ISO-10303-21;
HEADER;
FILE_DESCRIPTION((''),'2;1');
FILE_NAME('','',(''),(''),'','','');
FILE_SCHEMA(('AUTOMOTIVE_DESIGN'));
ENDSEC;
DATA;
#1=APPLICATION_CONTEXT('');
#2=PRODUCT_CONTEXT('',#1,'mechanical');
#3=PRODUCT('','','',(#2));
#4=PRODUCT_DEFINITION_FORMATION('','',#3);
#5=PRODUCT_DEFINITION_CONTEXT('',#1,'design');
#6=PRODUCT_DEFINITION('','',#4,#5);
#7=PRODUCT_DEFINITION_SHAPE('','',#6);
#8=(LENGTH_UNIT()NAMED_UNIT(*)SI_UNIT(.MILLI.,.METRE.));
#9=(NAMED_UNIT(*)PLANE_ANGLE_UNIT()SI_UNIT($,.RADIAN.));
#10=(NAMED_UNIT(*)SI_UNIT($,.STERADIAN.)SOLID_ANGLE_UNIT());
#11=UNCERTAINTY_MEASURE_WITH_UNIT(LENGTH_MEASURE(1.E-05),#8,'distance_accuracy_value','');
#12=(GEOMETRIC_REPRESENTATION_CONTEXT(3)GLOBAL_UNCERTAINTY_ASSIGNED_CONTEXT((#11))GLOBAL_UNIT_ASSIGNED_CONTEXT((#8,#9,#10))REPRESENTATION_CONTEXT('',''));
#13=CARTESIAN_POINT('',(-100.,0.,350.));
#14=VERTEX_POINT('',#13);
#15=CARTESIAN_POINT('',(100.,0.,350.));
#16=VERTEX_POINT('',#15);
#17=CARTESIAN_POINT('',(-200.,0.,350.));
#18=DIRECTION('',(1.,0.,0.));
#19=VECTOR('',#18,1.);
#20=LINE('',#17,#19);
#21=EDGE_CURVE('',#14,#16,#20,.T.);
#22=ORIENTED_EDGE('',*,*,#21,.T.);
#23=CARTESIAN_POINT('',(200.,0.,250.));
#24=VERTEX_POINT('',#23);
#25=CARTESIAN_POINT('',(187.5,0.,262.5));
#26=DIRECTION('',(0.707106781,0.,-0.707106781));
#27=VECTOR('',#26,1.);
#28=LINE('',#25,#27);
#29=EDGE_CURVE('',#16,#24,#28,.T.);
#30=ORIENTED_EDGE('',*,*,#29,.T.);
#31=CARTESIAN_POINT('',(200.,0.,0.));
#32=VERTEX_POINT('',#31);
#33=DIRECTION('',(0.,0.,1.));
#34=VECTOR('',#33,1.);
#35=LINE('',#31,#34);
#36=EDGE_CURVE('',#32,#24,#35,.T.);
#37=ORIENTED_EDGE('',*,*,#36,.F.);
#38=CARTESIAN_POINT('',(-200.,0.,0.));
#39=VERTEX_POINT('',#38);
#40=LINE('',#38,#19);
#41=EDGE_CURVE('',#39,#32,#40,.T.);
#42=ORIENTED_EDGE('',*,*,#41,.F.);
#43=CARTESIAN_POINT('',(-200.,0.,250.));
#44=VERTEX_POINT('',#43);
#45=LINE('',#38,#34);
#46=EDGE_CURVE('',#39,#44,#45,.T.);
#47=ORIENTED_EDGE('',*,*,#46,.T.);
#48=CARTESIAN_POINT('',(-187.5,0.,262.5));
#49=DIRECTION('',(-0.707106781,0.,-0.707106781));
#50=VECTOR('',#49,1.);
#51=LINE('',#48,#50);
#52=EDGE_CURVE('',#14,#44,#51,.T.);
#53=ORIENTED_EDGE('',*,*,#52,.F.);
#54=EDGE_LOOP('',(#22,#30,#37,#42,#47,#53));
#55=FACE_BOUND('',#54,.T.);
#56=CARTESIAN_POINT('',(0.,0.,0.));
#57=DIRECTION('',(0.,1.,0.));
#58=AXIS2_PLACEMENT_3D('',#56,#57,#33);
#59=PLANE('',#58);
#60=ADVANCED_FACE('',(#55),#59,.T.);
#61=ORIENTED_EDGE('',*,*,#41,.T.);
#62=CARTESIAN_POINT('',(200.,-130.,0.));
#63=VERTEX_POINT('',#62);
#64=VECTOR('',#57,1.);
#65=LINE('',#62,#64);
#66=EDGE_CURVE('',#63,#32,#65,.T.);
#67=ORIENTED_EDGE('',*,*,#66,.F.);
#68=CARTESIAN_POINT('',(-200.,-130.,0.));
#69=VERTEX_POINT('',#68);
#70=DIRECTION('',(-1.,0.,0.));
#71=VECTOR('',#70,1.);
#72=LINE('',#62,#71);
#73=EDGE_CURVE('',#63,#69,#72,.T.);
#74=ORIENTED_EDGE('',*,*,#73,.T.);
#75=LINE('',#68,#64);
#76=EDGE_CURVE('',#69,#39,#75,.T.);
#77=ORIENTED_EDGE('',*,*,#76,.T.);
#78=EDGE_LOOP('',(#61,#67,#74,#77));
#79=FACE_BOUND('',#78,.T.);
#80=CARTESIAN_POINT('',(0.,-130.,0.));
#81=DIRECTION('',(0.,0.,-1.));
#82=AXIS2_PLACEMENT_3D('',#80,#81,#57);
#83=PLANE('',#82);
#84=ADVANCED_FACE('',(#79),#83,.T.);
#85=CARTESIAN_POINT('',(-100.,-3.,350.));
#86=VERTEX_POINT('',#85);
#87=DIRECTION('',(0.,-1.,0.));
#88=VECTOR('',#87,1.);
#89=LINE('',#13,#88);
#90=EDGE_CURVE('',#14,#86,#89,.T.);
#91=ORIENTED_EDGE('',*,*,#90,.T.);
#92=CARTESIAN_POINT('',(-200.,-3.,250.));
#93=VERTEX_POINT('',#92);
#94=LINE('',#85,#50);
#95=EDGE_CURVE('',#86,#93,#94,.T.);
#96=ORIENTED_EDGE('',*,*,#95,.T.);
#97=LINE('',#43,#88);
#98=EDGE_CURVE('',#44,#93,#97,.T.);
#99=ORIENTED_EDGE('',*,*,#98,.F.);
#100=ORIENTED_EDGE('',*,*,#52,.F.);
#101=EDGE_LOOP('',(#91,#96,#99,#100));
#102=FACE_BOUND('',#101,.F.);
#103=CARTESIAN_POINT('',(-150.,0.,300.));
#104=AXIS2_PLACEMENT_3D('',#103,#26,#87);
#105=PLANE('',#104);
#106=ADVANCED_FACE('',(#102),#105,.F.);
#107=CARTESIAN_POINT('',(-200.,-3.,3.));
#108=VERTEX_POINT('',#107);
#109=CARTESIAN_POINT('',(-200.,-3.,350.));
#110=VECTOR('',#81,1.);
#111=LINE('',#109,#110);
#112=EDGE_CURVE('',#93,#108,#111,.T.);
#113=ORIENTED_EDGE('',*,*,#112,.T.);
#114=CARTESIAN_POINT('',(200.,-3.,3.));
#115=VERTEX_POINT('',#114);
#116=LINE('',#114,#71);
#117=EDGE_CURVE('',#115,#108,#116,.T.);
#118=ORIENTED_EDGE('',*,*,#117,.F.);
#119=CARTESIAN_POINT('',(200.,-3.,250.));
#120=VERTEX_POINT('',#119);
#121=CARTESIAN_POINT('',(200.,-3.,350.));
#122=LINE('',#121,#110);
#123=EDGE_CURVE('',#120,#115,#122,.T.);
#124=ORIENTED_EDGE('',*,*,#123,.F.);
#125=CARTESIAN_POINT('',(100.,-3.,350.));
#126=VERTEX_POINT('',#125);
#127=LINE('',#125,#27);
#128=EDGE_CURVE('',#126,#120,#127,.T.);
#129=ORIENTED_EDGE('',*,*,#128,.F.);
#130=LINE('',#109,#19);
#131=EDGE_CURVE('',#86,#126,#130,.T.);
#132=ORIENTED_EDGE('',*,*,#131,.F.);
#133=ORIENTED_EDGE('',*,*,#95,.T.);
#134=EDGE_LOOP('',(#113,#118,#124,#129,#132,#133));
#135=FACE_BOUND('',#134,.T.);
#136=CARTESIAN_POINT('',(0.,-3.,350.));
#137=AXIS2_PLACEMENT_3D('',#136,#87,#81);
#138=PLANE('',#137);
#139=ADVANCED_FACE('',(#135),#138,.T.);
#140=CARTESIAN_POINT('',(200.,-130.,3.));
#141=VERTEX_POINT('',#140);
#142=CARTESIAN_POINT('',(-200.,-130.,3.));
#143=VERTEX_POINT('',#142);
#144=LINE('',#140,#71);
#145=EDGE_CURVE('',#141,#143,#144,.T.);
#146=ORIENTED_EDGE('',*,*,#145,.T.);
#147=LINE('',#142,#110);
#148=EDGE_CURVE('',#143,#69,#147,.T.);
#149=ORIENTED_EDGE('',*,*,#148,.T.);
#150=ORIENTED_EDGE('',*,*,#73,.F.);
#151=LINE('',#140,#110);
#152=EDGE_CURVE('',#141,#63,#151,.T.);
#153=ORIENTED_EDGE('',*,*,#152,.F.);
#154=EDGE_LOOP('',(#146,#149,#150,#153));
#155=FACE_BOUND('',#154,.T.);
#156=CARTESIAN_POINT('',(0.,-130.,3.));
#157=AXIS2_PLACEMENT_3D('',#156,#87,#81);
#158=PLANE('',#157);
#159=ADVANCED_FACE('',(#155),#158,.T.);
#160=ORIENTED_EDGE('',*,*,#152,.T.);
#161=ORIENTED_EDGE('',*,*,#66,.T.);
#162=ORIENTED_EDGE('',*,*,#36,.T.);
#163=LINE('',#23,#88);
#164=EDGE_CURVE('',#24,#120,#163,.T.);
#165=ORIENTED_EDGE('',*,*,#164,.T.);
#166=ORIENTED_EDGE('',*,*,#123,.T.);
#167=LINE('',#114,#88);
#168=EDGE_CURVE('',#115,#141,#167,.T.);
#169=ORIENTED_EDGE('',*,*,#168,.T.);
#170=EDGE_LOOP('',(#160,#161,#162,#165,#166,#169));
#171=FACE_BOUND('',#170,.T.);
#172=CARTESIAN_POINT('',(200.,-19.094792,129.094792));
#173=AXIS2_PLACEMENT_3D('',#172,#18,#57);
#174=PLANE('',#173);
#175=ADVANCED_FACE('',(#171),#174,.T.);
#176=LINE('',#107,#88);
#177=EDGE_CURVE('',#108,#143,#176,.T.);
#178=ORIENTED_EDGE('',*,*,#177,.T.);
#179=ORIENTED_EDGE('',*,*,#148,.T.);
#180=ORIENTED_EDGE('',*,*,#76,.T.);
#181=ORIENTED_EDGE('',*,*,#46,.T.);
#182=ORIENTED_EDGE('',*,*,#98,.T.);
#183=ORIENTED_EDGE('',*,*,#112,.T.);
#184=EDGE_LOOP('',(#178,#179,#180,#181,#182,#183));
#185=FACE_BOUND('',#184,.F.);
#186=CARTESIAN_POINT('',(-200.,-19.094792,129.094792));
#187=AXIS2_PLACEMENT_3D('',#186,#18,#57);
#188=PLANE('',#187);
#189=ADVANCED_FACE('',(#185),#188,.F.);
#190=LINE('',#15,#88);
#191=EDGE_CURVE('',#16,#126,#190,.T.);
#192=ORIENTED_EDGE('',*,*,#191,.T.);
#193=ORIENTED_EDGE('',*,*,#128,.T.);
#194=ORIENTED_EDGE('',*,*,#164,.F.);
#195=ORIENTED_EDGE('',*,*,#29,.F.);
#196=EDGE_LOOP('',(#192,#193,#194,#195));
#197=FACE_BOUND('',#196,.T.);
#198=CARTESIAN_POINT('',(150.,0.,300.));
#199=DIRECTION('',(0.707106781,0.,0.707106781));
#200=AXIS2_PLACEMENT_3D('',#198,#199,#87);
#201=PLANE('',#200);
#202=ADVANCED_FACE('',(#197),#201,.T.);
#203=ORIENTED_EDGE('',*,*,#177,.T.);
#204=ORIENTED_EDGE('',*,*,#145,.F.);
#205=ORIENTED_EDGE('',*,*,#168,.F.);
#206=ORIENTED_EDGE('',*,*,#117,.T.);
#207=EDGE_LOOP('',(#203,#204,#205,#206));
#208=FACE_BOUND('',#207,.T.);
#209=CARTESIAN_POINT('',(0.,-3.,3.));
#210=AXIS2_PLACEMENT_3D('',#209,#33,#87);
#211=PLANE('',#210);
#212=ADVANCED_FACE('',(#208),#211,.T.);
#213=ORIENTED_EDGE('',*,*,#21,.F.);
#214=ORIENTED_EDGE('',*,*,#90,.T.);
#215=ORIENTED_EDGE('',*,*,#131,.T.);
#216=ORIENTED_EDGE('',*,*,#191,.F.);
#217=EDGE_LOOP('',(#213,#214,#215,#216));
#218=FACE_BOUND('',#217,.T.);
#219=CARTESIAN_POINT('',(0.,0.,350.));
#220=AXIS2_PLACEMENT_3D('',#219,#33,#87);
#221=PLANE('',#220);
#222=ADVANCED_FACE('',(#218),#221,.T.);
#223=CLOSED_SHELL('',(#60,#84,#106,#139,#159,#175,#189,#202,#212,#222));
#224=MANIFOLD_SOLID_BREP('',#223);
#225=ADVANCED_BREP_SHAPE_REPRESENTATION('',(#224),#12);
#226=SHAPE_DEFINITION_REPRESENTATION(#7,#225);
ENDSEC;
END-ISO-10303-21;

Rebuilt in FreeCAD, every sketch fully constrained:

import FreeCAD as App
import Part
import Sketcher


def edges_at(feature, points):
    """Names of the edges that pass closest to the given points."""
    edges = feature.Shape.Edges
    near = lambda p: min(range(len(edges)), key=lambda i: edges[i].distToShape(Part.Vertex(*p))[0])
    return sorted({f"Edge{near(p) + 1}" for p in points})

doc = App.newDocument("Part")
body = doc.addObject("PartDesign::Body", "Body")

# Sketch on YZ plane
sketch1 = body.newObject("Sketcher::SketchObject", "Sketch")
sketch1.AttachmentSupport = (doc.getObject("YZ_Plane"), [""])
sketch1.MapMode = "FlatFace"
sketch1.addGeometry([
    Part.LineSegment(App.Vector(-130, 0, 0), App.Vector(0, 0, 0)),  # 0
    Part.LineSegment(App.Vector(0, 0, 0), App.Vector(0, 350, 0)),  # 1
    Part.LineSegment(App.Vector(0, 350, 0), App.Vector(-3, 350, 0)),  # 2
    Part.LineSegment(App.Vector(-3, 350, 0), App.Vector(-3, 3, 0)),  # 3
    Part.LineSegment(App.Vector(-3, 3, 0), App.Vector(-130, 3, 0)),  # 4
    Part.LineSegment(App.Vector(-130, 3, 0), App.Vector(-130, 0, 0)),  # 5
], False)
sketch1.addConstraint([
    Sketcher.Constraint("Coincident", 0, 2, 1, 1),
    Sketcher.Constraint("Coincident", 1, 2, 2, 1),
    Sketcher.Constraint("Coincident", 2, 2, 3, 1),
    Sketcher.Constraint("Coincident", 3, 2, 4, 1),
    Sketcher.Constraint("Coincident", 4, 2, 5, 1),
    Sketcher.Constraint("Coincident", 5, 2, 0, 1),
    Sketcher.Constraint("Horizontal", 0),
    Sketcher.Constraint("Vertical", 1),
    Sketcher.Constraint("Horizontal", 2),
    Sketcher.Constraint("Vertical", 3),
    Sketcher.Constraint("Horizontal", 4),
    Sketcher.Constraint("Vertical", 5),
    Sketcher.Constraint("Coincident", 0, 2, -1, 1),
    Sketcher.Constraint("Equal", 2, 5),
    Sketcher.Constraint("DistanceX", 0, 1, 0, 2, 130.0),
    Sketcher.Constraint("DistanceX", 2, 2, 2, 1, 3.0),
    Sketcher.Constraint("DistanceY", 1, 1, 1, 2, 350.0),
])
pad1 = body.newObject("PartDesign::Pad", "Pad")
pad1.Profile = sketch1
pad1.Length = 400
pad1.Midplane = True
doc.recompute()

chamfer = body.newObject("PartDesign::Chamfer", "Chamfer")
chamfer.Base = (pad1, edges_at(pad1, [(200, -1.5, 350), (-200, -1.5, 350)]))
chamfer.Size = 100

doc.recompute()
